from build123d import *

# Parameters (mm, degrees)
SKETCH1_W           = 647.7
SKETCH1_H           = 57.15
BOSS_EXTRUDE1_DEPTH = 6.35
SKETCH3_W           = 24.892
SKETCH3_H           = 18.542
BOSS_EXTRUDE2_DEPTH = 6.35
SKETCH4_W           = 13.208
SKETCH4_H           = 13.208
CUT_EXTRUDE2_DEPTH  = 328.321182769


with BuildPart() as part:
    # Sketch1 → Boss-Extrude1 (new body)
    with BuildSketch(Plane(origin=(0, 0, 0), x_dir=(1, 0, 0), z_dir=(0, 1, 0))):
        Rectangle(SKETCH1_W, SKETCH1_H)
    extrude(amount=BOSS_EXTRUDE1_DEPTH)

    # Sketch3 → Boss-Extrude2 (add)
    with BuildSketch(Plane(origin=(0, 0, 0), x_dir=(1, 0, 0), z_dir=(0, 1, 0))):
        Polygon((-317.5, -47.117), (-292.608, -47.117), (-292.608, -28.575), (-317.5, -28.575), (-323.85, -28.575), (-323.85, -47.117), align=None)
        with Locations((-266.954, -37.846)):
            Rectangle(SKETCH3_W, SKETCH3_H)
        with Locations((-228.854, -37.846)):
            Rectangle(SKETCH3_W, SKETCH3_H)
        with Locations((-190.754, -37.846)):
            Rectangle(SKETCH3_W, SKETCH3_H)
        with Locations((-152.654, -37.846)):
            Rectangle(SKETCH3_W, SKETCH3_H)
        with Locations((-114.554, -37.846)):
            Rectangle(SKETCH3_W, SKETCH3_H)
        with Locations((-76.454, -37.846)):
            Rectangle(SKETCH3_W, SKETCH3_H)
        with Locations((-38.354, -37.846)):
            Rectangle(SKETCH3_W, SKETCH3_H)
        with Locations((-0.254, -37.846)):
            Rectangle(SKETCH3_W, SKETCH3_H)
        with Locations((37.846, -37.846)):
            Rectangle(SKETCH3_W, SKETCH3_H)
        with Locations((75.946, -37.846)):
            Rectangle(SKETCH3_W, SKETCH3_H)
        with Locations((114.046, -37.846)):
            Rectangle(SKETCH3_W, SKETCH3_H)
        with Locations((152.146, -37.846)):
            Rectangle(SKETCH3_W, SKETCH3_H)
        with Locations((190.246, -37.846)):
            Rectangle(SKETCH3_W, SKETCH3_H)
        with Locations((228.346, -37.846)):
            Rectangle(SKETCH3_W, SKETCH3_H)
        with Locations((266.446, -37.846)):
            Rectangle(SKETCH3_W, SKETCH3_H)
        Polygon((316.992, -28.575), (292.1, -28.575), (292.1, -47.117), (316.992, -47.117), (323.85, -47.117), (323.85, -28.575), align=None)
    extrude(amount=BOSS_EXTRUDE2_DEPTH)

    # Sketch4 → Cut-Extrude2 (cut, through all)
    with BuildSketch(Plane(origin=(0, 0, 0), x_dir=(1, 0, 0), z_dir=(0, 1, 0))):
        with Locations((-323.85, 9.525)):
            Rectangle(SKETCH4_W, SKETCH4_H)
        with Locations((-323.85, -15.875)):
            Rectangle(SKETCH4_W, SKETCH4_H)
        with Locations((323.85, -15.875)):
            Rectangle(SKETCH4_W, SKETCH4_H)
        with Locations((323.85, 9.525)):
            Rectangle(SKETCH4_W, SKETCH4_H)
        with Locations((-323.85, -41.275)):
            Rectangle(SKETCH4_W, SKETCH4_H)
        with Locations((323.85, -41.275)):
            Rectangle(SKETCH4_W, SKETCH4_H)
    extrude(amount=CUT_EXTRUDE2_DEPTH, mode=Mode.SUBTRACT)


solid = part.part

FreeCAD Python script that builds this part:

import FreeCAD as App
import Part
import Sketcher
Q = App.Units.Quantity

doc = App.newDocument("Part")
body = doc.addObject("PartDesign::Body", "Body")

sketch1 = body.newObject("Sketcher::SketchObject", "Sketch")
sketch1.AttachmentSupport = (doc.getObject("XZ_Plane"), [""])
sketch1.MapMode = "FlatFace"
sketch1.addGeometry([
    Part.LineSegment(App.Vector(-323.85, -28.575, 0), App.Vector(-323.85, 28.575, 0)),
    Part.LineSegment(App.Vector(-323.85, 28.575, 0), App.Vector(323.85, 28.575, 0)),
    Part.LineSegment(App.Vector(323.85, 28.575, 0), App.Vector(323.85, -28.575, 0)),
    Part.LineSegment(App.Vector(323.85, -28.575, 0), App.Vector(-323.85, -28.575, 0)),
], False)
sketch1.addConstraint([
    Sketcher.Constraint("Coincident", 0, 2, 1, 1),
    Sketcher.Constraint("Coincident", 1, 2, 2, 1),
    Sketcher.Constraint("Coincident", 2, 2, 3, 1),
    Sketcher.Constraint("Coincident", 3, 2, 0, 1),
    Sketcher.Constraint("Vertical", 0),
    Sketcher.Constraint("Horizontal", 1),
    Sketcher.Constraint("Vertical", 2),
    Sketcher.Constraint("Horizontal", 3),
    Sketcher.Constraint("Symmetric", 0, 2, 2, 2, -1, 1),
    Sketcher.Constraint("DistanceX", 1, 1, 1, 2, Q("25.5 in")),
    Sketcher.Constraint("DistanceY", 0, 1, 0, 2, Q("2.25 in")),
])
pad1 = body.newObject("PartDesign::Pad", "Pad")
pad1.Profile = sketch1
pad1.Length = Q("0.25 in")
pad1.Reversed = True

sketch2 = body.newObject("Sketcher::SketchObject", "Sketch001")
sketch2.AttachmentSupport = (doc.getObject("XZ_Plane"), [""])
sketch2.MapMode = "FlatFace"
sketch2.addGeometry([
    Part.LineSegment(App.Vector(-292.608, 47.117, 0), App.Vector(-292.608, 28.575, 0)),
    Part.LineSegment(App.Vector(-292.608, 28.575, 0), App.Vector(-323.85, 28.575, 0)),
    Part.LineSegment(App.Vector(-323.85, 28.575, 0), App.Vector(-323.85, 47.117, 0)),
    Part.LineSegment(App.Vector(-323.85, 47.117, 0), App.Vector(-292.608, 47.117, 0)),
    Part.LineSegment(App.Vector(-279.4, 28.575, 0), App.Vector(-279.4, 47.117, 0)),
    Part.LineSegment(App.Vector(-279.4, 47.117, 0), App.Vector(-254.508, 47.117, 0)),
    Part.LineSegment(App.Vector(-254.508, 47.117, 0), App.Vector(-254.508, 28.575, 0)),
    Part.LineSegment(App.Vector(-254.508, 28.575, 0), App.Vector(-279.4, 28.575, 0)),
    Part.LineSegment(App.Vector(-241.3, 28.575, 0), App.Vector(-241.3, 47.117, 0)),
    Part.LineSegment(App.Vector(-241.3, 47.117, 0), App.Vector(-216.408, 47.117, 0)),
    Part.LineSegment(App.Vector(-216.408, 47.117, 0), App.Vector(-216.408, 28.575, 0)),
    Part.LineSegment(App.Vector(-216.408, 28.575, 0), App.Vector(-241.3, 28.575, 0)),
    Part.LineSegment(App.Vector(-203.2, 28.575, 0), App.Vector(-203.2, 47.117, 0)),
    Part.LineSegment(App.Vector(-203.2, 47.117, 0), App.Vector(-178.308, 47.117, 0)),
    Part.LineSegment(App.Vector(-178.308, 47.117, 0), App.Vector(-178.308, 28.575, 0)),
    Part.LineSegment(App.Vector(-178.308, 28.575, 0), App.Vector(-203.2, 28.575, 0)),
    Part.LineSegment(App.Vector(-165.1, 28.575, 0), App.Vector(-165.1, 47.117, 0)),
    Part.LineSegment(App.Vector(-165.1, 47.117, 0), App.Vector(-140.208, 47.117, 0)),
    Part.LineSegment(App.Vector(-140.208, 47.117, 0), App.Vector(-140.208, 28.575, 0)),
    Part.LineSegment(App.Vector(-140.208, 28.575, 0), App.Vector(-165.1, 28.575, 0)),
    Part.LineSegment(App.Vector(-127, 28.575, 0), App.Vector(-127, 47.117, 0)),
    Part.LineSegment(App.Vector(-127, 47.117, 0), App.Vector(-102.108, 47.117, 0)),
    Part.LineSegment(App.Vector(-102.108, 47.117, 0), App.Vector(-102.108, 28.575, 0)),
    Part.LineSegment(App.Vector(-102.108, 28.575, 0), App.Vector(-127, 28.575, 0)),
    Part.LineSegment(App.Vector(-88.9, 28.575, 0), App.Vector(-88.9, 47.117, 0)),
    Part.LineSegment(App.Vector(-88.9, 47.117, 0), App.Vector(-64.008, 47.117, 0)),
    Part.LineSegment(App.Vector(-64.008, 47.117, 0), App.Vector(-64.008, 28.575, 0)),
    Part.LineSegment(App.Vector(-64.008, 28.575, 0), App.Vector(-88.9, 28.575, 0)),
    Part.LineSegment(App.Vector(-50.8, 28.575, 0), App.Vector(-50.8, 47.117, 0)),
    Part.LineSegment(App.Vector(-50.8, 47.117, 0), App.Vector(-25.908, 47.117, 0)),
    Part.LineSegment(App.Vector(-25.908, 47.117, 0), App.Vector(-25.908, 28.575, 0)),
    Part.LineSegment(App.Vector(-25.908, 28.575, 0), App.Vector(-50.8, 28.575, 0)),
    Part.LineSegment(App.Vector(-12.7, 28.575, 0), App.Vector(-12.7, 47.117, 0)),
    Part.LineSegment(App.Vector(-12.7, 47.117, 0), App.Vector(12.192, 47.117, 0)),
    Part.LineSegment(App.Vector(12.192, 47.117, 0), App.Vector(12.192, 28.575, 0)),
    Part.LineSegment(App.Vector(12.192, 28.575, 0), App.Vector(-12.7, 28.575, 0)),
    Part.LineSegment(App.Vector(25.4, 28.575, 0), App.Vector(25.4, 47.117, 0)),
    Part.LineSegment(App.Vector(25.4, 47.117, 0), App.Vector(50.292, 47.117, 0)),
    Part.LineSegment(App.Vector(50.292, 47.117, 0), App.Vector(50.292, 28.575, 0)),
    Part.LineSegment(App.Vector(50.292, 28.575, 0), App.Vector(25.4, 28.575, 0)),
    Part.LineSegment(App.Vector(63.5, 28.575, 0), App.Vector(63.5, 47.117, 0)),
    Part.LineSegment(App.Vector(63.5, 47.117, 0), App.Vector(88.392, 47.117, 0)),
    Part.LineSegment(App.Vector(88.392, 47.117, 0), App.Vector(88.392, 28.575, 0)),
    Part.LineSegment(App.Vector(88.392, 28.575, 0), App.Vector(63.5, 28.575, 0)),
    Part.LineSegment(App.Vector(101.6, 28.575, 0), App.Vector(101.6, 47.117, 0)),
    Part.LineSegment(App.Vector(101.6, 47.117, 0), App.Vector(126.492, 47.117, 0)),
    Part.LineSegment(App.Vector(126.492, 47.117, 0), App.Vector(126.492, 28.575, 0)),
    Part.LineSegment(App.Vector(126.492, 28.575, 0), App.Vector(101.6, 28.575, 0)),
    Part.LineSegment(App.Vector(139.7, 28.575, 0), App.Vector(139.7, 47.117, 0)),
    Part.LineSegment(App.Vector(139.7, 47.117, 0), App.Vector(164.592, 47.117, 0)),
    Part.LineSegment(App.Vector(164.592, 47.117, 0), App.Vector(164.592, 28.575, 0)),
    Part.LineSegment(App.Vector(164.592, 28.575, 0), App.Vector(139.7, 28.575, 0)),
    Part.LineSegment(App.Vector(177.8, 28.575, 0), App.Vector(177.8, 47.117, 0)),
    Part.LineSegment(App.Vector(177.8, 47.117, 0), App.Vector(202.692, 47.117, 0)),
    Part.LineSegment(App.Vector(202.692, 47.117, 0), App.Vector(202.692, 28.575, 0)),
    Part.LineSegment(App.Vector(202.692, 28.575, 0), App.Vector(177.8, 28.575, 0)),
    Part.LineSegment(App.Vector(215.9, 28.575, 0), App.Vector(215.9, 47.117, 0)),
    Part.LineSegment(App.Vector(215.9, 47.117, 0), App.Vector(240.792, 47.117, 0)),
    Part.LineSegment(App.Vector(240.792, 47.117, 0), App.Vector(240.792, 28.575, 0)),
    Part.LineSegment(App.Vector(240.792, 28.575, 0), App.Vector(215.9, 28.575, 0)),
    Part.LineSegment(App.Vector(254, 28.575, 0), App.Vector(254, 47.117, 0)),
    Part.LineSegment(App.Vector(254, 47.117, 0), App.Vector(278.892, 47.117, 0)),
    Part.LineSegment(App.Vector(278.892, 47.117, 0), App.Vector(278.892, 28.575, 0)),
    Part.LineSegment(App.Vector(278.892, 28.575, 0), App.Vector(254, 28.575, 0)),
    Part.LineSegment(App.Vector(292.1, 28.575, 0), App.Vector(292.1, 47.117, 0)),
    Part.LineSegment(App.Vector(292.1, 47.117, 0), App.Vector(323.85, 47.117, 0)),
    Part.LineSegment(App.Vector(323.85, 47.117, 0), App.Vector(323.85, 28.575, 0)),
    Part.LineSegment(App.Vector(323.85, 28.575, 0), App.Vector(292.1, 28.575, 0)),
], False)
sketch2.addConstraint([
    Sketcher.Constraint("Coincident", 0, 2, 1, 1),
    Sketcher.Constraint("Coincident", 1, 2, 2, 1),
    Sketcher.Constraint("Coincident", 2, 2, 3, 1),
    Sketcher.Constraint("Coincident", 3, 2, 0, 1),
    Sketcher.Constraint("Coincident", 4, 2, 5, 1),
    Sketcher.Constraint("Coincident", 5, 2, 6, 1),
    Sketcher.Constraint("Coincident", 6, 2, 7, 1),
    Sketcher.Constraint("Coincident", 7, 2, 4, 1),
    Sketcher.Constraint("Coincident", 8, 2, 9, 1),
    Sketcher.Constraint("Coincident", 9, 2, 10, 1),
    Sketcher.Constraint("Coincident", 10, 2, 11, 1),
    Sketcher.Constraint("Coincident", 11, 2, 8, 1),
    Sketcher.Constraint("Coincident", 12, 2, 13, 1),
    Sketcher.Constraint("Coincident", 13, 2, 14, 1),
    Sketcher.Constraint("Coincident", 14, 2, 15, 1),
    Sketcher.Constraint("Coincident", 15, 2, 12, 1),
    Sketcher.Constraint("Coincident", 16, 2, 17, 1),
    Sketcher.Constraint("Coincident", 17, 2, 18, 1),
    Sketcher.Constraint("Coincident", 18, 2, 19, 1),
    Sketcher.Constraint("Coincident", 19, 2, 16, 1),
    Sketcher.Constraint("Coincident", 20, 2, 21, 1),
    Sketcher.Constraint("Coincident", 21, 2, 22, 1),
    Sketcher.Constraint("Coincident", 22, 2, 23, 1),
    Sketcher.Constraint("Coincident", 23, 2, 20, 1),
    Sketcher.Constraint("Coincident", 24, 2, 25, 1),
    Sketcher.Constraint("Coincident", 25, 2, 26, 1),
    Sketcher.Constraint("Coincident", 26, 2, 27, 1),
    Sketcher.Constraint("Coincident", 27, 2, 24, 1),
    Sketcher.Constraint("Coincident", 28, 2, 29, 1),
    Sketcher.Constraint("Coincident", 29, 2, 30, 1),
    Sketcher.Constraint("Coincident", 30, 2, 31, 1),
    Sketcher.Constraint("Coincident", 31, 2, 28, 1),
    Sketcher.Constraint("Coincident", 32, 2, 33, 1),
    Sketcher.Constraint("Coincident", 33, 2, 34, 1),
    Sketcher.Constraint("Coincident", 34, 2, 35, 1),
    Sketcher.Constraint("Coincident", 35, 2, 32, 1),
    Sketcher.Constraint("Coincident", 36, 2, 37, 1),
    Sketcher.Constraint("Coincident", 37, 2, 38, 1),
    Sketcher.Constraint("Coincident", 38, 2, 39, 1),
    Sketcher.Constraint("Coincident", 39, 2, 36, 1),
    Sketcher.Constraint("Coincident", 40, 2, 41, 1),
    Sketcher.Constraint("Coincident", 41, 2, 42, 1),
    Sketcher.Constraint("Coincident", 42, 2, 43, 1),
    Sketcher.Constraint("Coincident", 43, 2, 40, 1),
    Sketcher.Constraint("Coincident", 44, 2, 45, 1),
    Sketcher.Constraint("Coincident", 45, 2, 46, 1),
    Sketcher.Constraint("Coincident", 46, 2, 47, 1),
    Sketcher.Constraint("Coincident", 47, 2, 44, 1),
    Sketcher.Constraint("Coincident", 48, 2, 49, 1),
    Sketcher.Constraint("Coincident", 49, 2, 50, 1),
    Sketcher.Constraint("Coincident", 50, 2, 51, 1),
    Sketcher.Constraint("Coincident", 51, 2, 48, 1),
    Sketcher.Constraint("Coincident", 52, 2, 53, 1),
    Sketcher.Constraint("Coincident", 53, 2, 54, 1),
    Sketcher.Constraint("Coincident", 54, 2, 55, 1),
    Sketcher.Constraint("Coincident", 55, 2, 52, 1),
    Sketcher.Constraint("Coincident", 56, 2, 57, 1),
    Sketcher.Constraint("Coincident", 57, 2, 58, 1),
    Sketcher.Constraint("Coincident", 58, 2, 59, 1),
    Sketcher.Constraint("Coincident", 59, 2, 56, 1),
    Sketcher.Constraint("Coincident", 60, 2, 61, 1),
    Sketcher.Constraint("Coincident", 61, 2, 62, 1),
    Sketcher.Constraint("Coincident", 62, 2, 63, 1),
    Sketcher.Constraint("Coincident", 63, 2, 60, 1),
    Sketcher.Constraint("Coincident", 64, 2, 65, 1),
    Sketcher.Constraint("Coincident", 65, 2, 66, 1),
    Sketcher.Constraint("Coincident", 66, 2, 67, 1),
    Sketcher.Constraint("Coincident", 67, 2, 64, 1),
    Sketcher.Constraint("Vertical", 0),
    Sketcher.Constraint("Horizontal", 1),
    Sketcher.Constraint("Vertical", 2),
    Sketcher.Constraint("Horizontal", 3),
    Sketcher.Constraint("Vertical", 4),
    Sketcher.Constraint("Horizontal", 5),
    Sketcher.Constraint("Vertical", 6),
    Sketcher.Constraint("Horizontal", 7),
    Sketcher.Constraint("Vertical", 8),
    Sketcher.Constraint("Horizontal", 9),
    Sketcher.Constraint("Vertical", 10),
    Sketcher.Constraint("Horizontal", 11),
    Sketcher.Constraint("Vertical", 12),
    Sketcher.Constraint("Horizontal", 13),
    Sketcher.Constraint("Vertical", 14),
    Sketcher.Constraint("Horizontal", 15),
    Sketcher.Constraint("Vertical", 16),
    Sketcher.Constraint("Horizontal", 17),
    Sketcher.Constraint("Vertical", 18),
    Sketcher.Constraint("Horizontal", 19),
    Sketcher.Constraint("Vertical", 20),
    Sketcher.Constraint("Horizontal", 21),
    Sketcher.Constraint("Vertical", 22),
    Sketcher.Constraint("Horizontal", 23),
    Sketcher.Constraint("Vertical", 24),
    Sketcher.Constraint("Horizontal", 25),
    Sketcher.Constraint("Vertical", 26),
    Sketcher.Constraint("Horizontal", 27),
    Sketcher.Constraint("Vertical", 28),
    Sketcher.Constraint("Horizontal", 29),
    Sketcher.Constraint("Vertical", 30),
    Sketcher.Constraint("Horizontal", 31),
    Sketcher.Constraint("Vertical", 32),
    Sketcher.Constraint("Horizontal", 33),
    Sketcher.Constraint("Vertical", 34),
    Sketcher.Constraint("Horizontal", 35),
    Sketcher.Constraint("Vertical", 36),
    Sketcher.Constraint("Horizontal", 37),
    Sketcher.Constraint("Vertical", 38),
    Sketcher.Constraint("Horizontal", 39),
    Sketcher.Constraint("Vertical", 40),
    Sketcher.Constraint("Horizontal", 41),
    Sketcher.Constraint("Vertical", 42),
    Sketcher.Constraint("Horizontal", 43),
    Sketcher.Constraint("Vertical", 44),
    Sketcher.Constraint("Horizontal", 45),
    Sketcher.Constraint("Vertical", 46),
    Sketcher.Constraint("Horizontal", 47),
    Sketcher.Constraint("Vertical", 48),
    Sketcher.Constraint("Horizontal", 49),
    Sketcher.Constraint("Vertical", 50),
    Sketcher.Constraint("Horizontal", 51),
    Sketcher.Constraint("Vertical", 52),
    Sketcher.Constraint("Horizontal", 53),
    Sketcher.Constraint("Vertical", 54),
    Sketcher.Constraint("Horizontal", 55),
    Sketcher.Constraint("Vertical", 56),
    Sketcher.Constraint("Horizontal", 57),
    Sketcher.Constraint("Vertical", 58),
    Sketcher.Constraint("Horizontal", 59),
    Sketcher.Constraint("Vertical", 60),
    Sketcher.Constraint("Horizontal", 61),
    Sketcher.Constraint("Vertical", 62),
    Sketcher.Constraint("Horizontal", 63),
    Sketcher.Constraint("Vertical", 64),
    Sketcher.Constraint("Horizontal", 65),
    Sketcher.Constraint("Vertical", 66),
    Sketcher.Constraint("Horizontal", 67),
    Sketcher.Constraint("Symmetric", 2, 2, 65, 2, -2),
    Sketcher.Constraint("Horizontal", 3, 2, 4, 2),
    Sketcher.Constraint("Horizontal", 1, 2, 6, 2),
    Sketcher.Constraint("Horizontal", 5, 2, 8, 2),
    Sketcher.Constraint("Horizontal", 7, 2, 10, 2),
    Sketcher.Constraint("Horizontal", 9, 2, 12, 2),
    Sketcher.Constraint("Horizontal", 11, 2, 14, 2),
    Sketcher.Constraint("Horizontal", 13, 2, 16, 2),
    Sketcher.Constraint("Horizontal", 15, 2, 18, 2),
    Sketcher.Constraint("Horizontal", 17, 2, 20, 2),
    Sketcher.Constraint("Horizontal", 19, 2, 22, 2),
    Sketcher.Constraint("Horizontal", 21, 2, 24, 2),
    Sketcher.Constraint("Horizontal", 23, 2, 26, 2),
    Sketcher.Constraint("Horizontal", 25, 2, 28, 2),
    Sketcher.Constraint("Horizontal", 27, 2, 30, 2),
    Sketcher.Constraint("Horizontal", 29, 2, 32, 2),
    Sketcher.Constraint("Horizontal", 31, 2, 34, 2),
    Sketcher.Constraint("Horizontal", 33, 2, 36, 2),
    Sketcher.Constraint("Horizontal", 35, 2, 38, 2),
    Sketcher.Constraint("Horizontal", 37, 2, 40, 2),
    Sketcher.Constraint("Horizontal", 39, 2, 42, 2),
    Sketcher.Constraint("Horizontal", 41, 2, 44, 2),
    Sketcher.Constraint("Horizontal", 43, 2, 46, 2),
    Sketcher.Constraint("Horizontal", 45, 2, 48, 2),
    Sketcher.Constraint("Horizontal", 47, 2, 50, 2),
    Sketcher.Constraint("Horizontal", 49, 2, 52, 2),
    Sketcher.Constraint("Horizontal", 51, 2, 54, 2),
    Sketcher.Constraint("Horizontal", 53, 2, 56, 2),
    Sketcher.Constraint("Horizontal", 55, 2, 58, 2),
    Sketcher.Constraint("Horizontal", 57, 2, 60, 2),
    Sketcher.Constraint("Horizontal", 59, 2, 62, 2),
    Sketcher.Constraint("Horizontal", 63, 2, 66, 2),
    Sketcher.Constraint("Equal", 7, 9),
    Sketcher.Constraint("Equal", 11, 13),
    Sketcher.Constraint("Equal", 15, 17),
    Sketcher.Constraint("Equal", 19, 21),
    Sketcher.Constraint("Equal", 23, 25),
    Sketcher.Constraint("Equal", 27, 29),
    Sketcher.Constraint("Equal", 31, 33),
    Sketcher.Constraint("Equal", 35, 37),
    Sketcher.Constraint("Equal", 39, 41),
    Sketcher.Constraint("Equal", 43, 45),
    Sketcher.Constraint("Equal", 47, 49),
    Sketcher.Constraint("Equal", 51, 53),
    Sketcher.Constraint("Equal", 55, 57),
    Sketcher.Constraint("Equal", 59, 61),
    Sketcher.Constraint("DistanceX", 4, 2, -1, 1, Q("11 in")),
    Sketcher.Constraint("DistanceX", 12, 2, -1, 1, Q("8 in")),
    Sketcher.Constraint("DistanceX", 20, 2, -1, 1, Q("5 in")),
    Sketcher.Constraint("DistanceX", 28, 2, -1, 1, Q("2 in")),
    Sketcher.Constraint("DistanceX", -1, 1, 36, 2, Q("1 in")),
    Sketcher.Constraint("DistanceX", -1, 1, 44, 2, Q("4 in")),
    Sketcher.Constraint("DistanceX", -1, 1, 52, 2, Q("7 in")),
    Sketcher.Constraint("DistanceX", -1, 1, 60, 2, Q("10 in")),
    Sketcher.Constraint("DistanceX", 1, 2, 1, 1, Q("1.23 in")),
    Sketcher.Constraint("DistanceX", 5, 1, 5, 2, Q("0.98 in")),
    Sketcher.Constraint("DistanceX", 65, 1, 65, 2, Q("1.25 in")),
    Sketcher.Constraint("DistanceY", 0, 2, 0, 1, Q("0.73 in")),
    Sketcher.Constraint("DistanceX", 8, 2, -1, 1, Q("9.5 in")),
    Sketcher.Constraint("DistanceX", 16, 2, -1, 1, Q("6.5 in")),
    Sketcher.Constraint("DistanceX", 24, 2, -1, 1, Q("3.5 in")),
    Sketcher.Constraint("DistanceX", 32, 2, -1, 1, Q("0.5 in")),
    Sketcher.Constraint("DistanceX", -1, 1, 40, 2, Q("2.5 in")),
    Sketcher.Constraint("DistanceX", -1, 1, 48, 2, Q("5.5 in")),
    Sketcher.Constraint("DistanceX", -1, 1, 56, 2, Q("8.5 in")),
    Sketcher.Constraint("DistanceX", -1, 1, 64, 2, Q("11.5 in")),
    Sketcher.Constraint("DistanceY", -1, 1, 0, 2, Q("1.125 in")),
])
pad2 = body.newObject("PartDesign::Pad", "Pad001")
pad2.Profile = sketch2
pad2.Length = Q("0.25 in")
pad2.Reversed = True

sketch3 = body.newObject("Sketcher::SketchObject", "Sketch002")
sketch3.AttachmentSupport = (doc.getObject("XZ_Plane"), [""])
sketch3.MapMode = "FlatFace"
sketch3.addGeometry([
    Part.LineSegment(App.Vector(-330.454, -16.129, 0), App.Vector(-330.454, -2.921, 0)),
    Part.LineSegment(App.Vector(-330.454, -2.921, 0), App.Vector(-317.246, -2.921, 0)),
    Part.LineSegment(App.Vector(-317.246, -2.921, 0), App.Vector(-317.246, -16.129, 0)),
    Part.LineSegment(App.Vector(-317.246, -16.129, 0), App.Vector(-330.454, -16.129, 0)),
    Part.LineSegment(App.Vector(-330.454, 9.271, 0), App.Vector(-330.454, 22.479, 0)),
    Part.LineSegment(App.Vector(-330.454, 22.479, 0), App.Vector(-317.246, 22.479, 0)),
    Part.LineSegment(App.Vector(-317.246, 22.479, 0), App.Vector(-317.246, 9.271, 0)),
    Part.LineSegment(App.Vector(-317.246, 9.271, 0), App.Vector(-330.454, 9.271, 0)),
    Part.LineSegment(App.Vector(317.246, 9.271, 0), App.Vector(317.246, 22.479, 0)),
    Part.LineSegment(App.Vector(317.246, 22.479, 0), App.Vector(330.454, 22.479, 0)),
    Part.LineSegment(App.Vector(330.454, 22.479, 0), App.Vector(330.454, 9.271, 0)),
    Part.LineSegment(App.Vector(330.454, 9.271, 0), App.Vector(317.246, 9.271, 0)),
    Part.LineSegment(App.Vector(317.246, -16.129, 0), App.Vector(317.246, -2.921, 0)),
    Part.LineSegment(App.Vector(317.246, -2.921, 0), App.Vector(330.454, -2.921, 0)),
    Part.LineSegment(App.Vector(330.454, -2.921, 0), App.Vector(330.454, -16.129, 0)),
    Part.LineSegment(App.Vector(330.454, -16.129, 0), App.Vector(317.246, -16.129, 0)),
    Part.LineSegment(App.Vector(-330.454, 34.671, 0), App.Vector(-330.454, 47.879, 0)),
    Part.LineSegment(App.Vector(-330.454, 47.879, 0), App.Vector(-317.246, 47.879, 0)),
    Part.LineSegment(App.Vector(-317.246, 47.879, 0), App.Vector(-317.246, 34.671, 0)),
    Part.LineSegment(App.Vector(-317.246, 34.671, 0), App.Vector(-330.454, 34.671, 0)),
    Part.LineSegment(App.Vector(317.246, 34.671, 0), App.Vector(317.246, 47.879, 0)),
    Part.LineSegment(App.Vector(317.246, 47.879, 0), App.Vector(330.454, 47.879, 0)),
    Part.LineSegment(App.Vector(330.454, 47.879, 0), App.Vector(330.454, 34.671, 0)),
    Part.LineSegment(App.Vector(330.454, 34.671, 0), App.Vector(317.246, 34.671, 0)),
], False)
sketch3.addConstraint([
    Sketcher.Constraint("Coincident", 0, 2, 1, 1),
    Sketcher.Constraint("Coincident", 1, 2, 2, 1),
    Sketcher.Constraint("Coincident", 2, 2, 3, 1),
    Sketcher.Constraint("Coincident", 3, 2, 0, 1),
    Sketcher.Constraint("Coincident", 4, 2, 5, 1),
    Sketcher.Constraint("Coincident", 5, 2, 6, 1),
    Sketcher.Constraint("Coincident", 6, 2, 7, 1),
    Sketcher.Constraint("Coincident", 7, 2, 4, 1),
    Sketcher.Constraint("Coincident", 8, 2, 9, 1),
    Sketcher.Constraint("Coincident", 9, 2, 10, 1),
    Sketcher.Constraint("Coincident", 10, 2, 11, 1),
    Sketcher.Constraint("Coincident", 11, 2, 8, 1),
    Sketcher.Constraint("Coincident", 12, 2, 13, 1),
    Sketcher.Constraint("Coincident", 13, 2, 14, 1),
    Sketcher.Constraint("Coincident", 14, 2, 15, 1),
    Sketcher.Constraint("Coincident", 15, 2, 12, 1),
    Sketcher.Constraint("Coincident", 16, 2, 17, 1),
    Sketcher.Constraint("Coincident", 17, 2, 18, 1),
    Sketcher.Constraint("Coincident", 18, 2, 19, 1),
    Sketcher.Constraint("Coincident", 19, 2, 16, 1),
    Sketcher.Constraint("Coincident", 20, 2, 21, 1),
    Sketcher.Constraint("Coincident", 21, 2, 22, 1),
    Sketcher.Constraint("Coincident", 22, 2, 23, 1),
    Sketcher.Constraint("Coincident", 23, 2, 20, 1),
    Sketcher.Constraint("Vertical", 0),
    Sketcher.Constraint("Horizontal", 1),
    Sketcher.Constraint("Vertical", 2),
    Sketcher.Constraint("Horizontal", 3),
    Sketcher.Constraint("Vertical", 4),
    Sketcher.Constraint("Horizontal", 5),
    Sketcher.Constraint("Vertical", 6),
    Sketcher.Constraint("Horizontal", 7),
    Sketcher.Constraint("Vertical", 8),
    Sketcher.Constraint("Horizontal", 9),
    Sketcher.Constraint("Vertical", 10),
    Sketcher.Constraint("Horizontal", 11),
    Sketcher.Constraint("Vertical", 12),
    Sketcher.Constraint("Horizontal", 13),
    Sketcher.Constraint("Vertical", 14),
    Sketcher.Constraint("Horizontal", 15),
    Sketcher.Constraint("Vertical", 16),
    Sketcher.Constraint("Horizontal", 17),
    Sketcher.Constraint("Vertical", 18),
    Sketcher.Constraint("Horizontal", 19),
    Sketcher.Constraint("Vertical", 20),
    Sketcher.Constraint("Horizontal", 21),
    Sketcher.Constraint("Vertical", 22),
    Sketcher.Constraint("Horizontal", 23),
    Sketcher.Constraint("Symmetric", 5, 2, 8, 2, -2),
    Sketcher.Constraint("Symmetric", 7, 2, 10, 2, -2),
    Sketcher.Constraint("Symmetric", 1, 2, 12, 2, -2),
    Sketcher.Constraint("Symmetric", 3, 2, 14, 2, -2),
    Sketcher.Constraint("Symmetric", 17, 2, 20, 2, -2),
    Sketcher.Constraint("Symmetric", 19, 2, 22, 2, -2),
    Sketcher.Constraint("Vertical", 3, 2, 4, 2),
    Sketcher.Constraint("Vertical", 2, 2, 5, 2),
    Sketcher.Constraint("Vertical", 7, 2, 16, 2),
    Sketcher.Constraint("Vertical", 6, 2, 17, 2),
    Sketcher.Constraint("Equal", 23, 0),
    Sketcher.Constraint("Equal", 2, 4),
    Sketcher.Constraint("Equal", 14, 16),
    Sketcher.Constraint("DistanceY", 0, 2, 4, 2, Q("1 in")),
    Sketcher.Constraint("DistanceY", 4, 2, 16, 2, Q("1 in")),
    Sketcher.Constraint("DistanceX", 1, 1, 1, 2, Q("0.52 in")),
    Sketcher.Constraint("DistanceX", 4, 2, 8, 2, Q("25.5 in")),
    Sketcher.Constraint("DistanceY", 0, 2, -1, 1, Q("0.115 in")),
])
pocket1 = body.newObject("PartDesign::Pocket", "Pocket")
pocket1.Profile = sketch3
pocket1.Type = "ThroughAll"

doc.recompute()
